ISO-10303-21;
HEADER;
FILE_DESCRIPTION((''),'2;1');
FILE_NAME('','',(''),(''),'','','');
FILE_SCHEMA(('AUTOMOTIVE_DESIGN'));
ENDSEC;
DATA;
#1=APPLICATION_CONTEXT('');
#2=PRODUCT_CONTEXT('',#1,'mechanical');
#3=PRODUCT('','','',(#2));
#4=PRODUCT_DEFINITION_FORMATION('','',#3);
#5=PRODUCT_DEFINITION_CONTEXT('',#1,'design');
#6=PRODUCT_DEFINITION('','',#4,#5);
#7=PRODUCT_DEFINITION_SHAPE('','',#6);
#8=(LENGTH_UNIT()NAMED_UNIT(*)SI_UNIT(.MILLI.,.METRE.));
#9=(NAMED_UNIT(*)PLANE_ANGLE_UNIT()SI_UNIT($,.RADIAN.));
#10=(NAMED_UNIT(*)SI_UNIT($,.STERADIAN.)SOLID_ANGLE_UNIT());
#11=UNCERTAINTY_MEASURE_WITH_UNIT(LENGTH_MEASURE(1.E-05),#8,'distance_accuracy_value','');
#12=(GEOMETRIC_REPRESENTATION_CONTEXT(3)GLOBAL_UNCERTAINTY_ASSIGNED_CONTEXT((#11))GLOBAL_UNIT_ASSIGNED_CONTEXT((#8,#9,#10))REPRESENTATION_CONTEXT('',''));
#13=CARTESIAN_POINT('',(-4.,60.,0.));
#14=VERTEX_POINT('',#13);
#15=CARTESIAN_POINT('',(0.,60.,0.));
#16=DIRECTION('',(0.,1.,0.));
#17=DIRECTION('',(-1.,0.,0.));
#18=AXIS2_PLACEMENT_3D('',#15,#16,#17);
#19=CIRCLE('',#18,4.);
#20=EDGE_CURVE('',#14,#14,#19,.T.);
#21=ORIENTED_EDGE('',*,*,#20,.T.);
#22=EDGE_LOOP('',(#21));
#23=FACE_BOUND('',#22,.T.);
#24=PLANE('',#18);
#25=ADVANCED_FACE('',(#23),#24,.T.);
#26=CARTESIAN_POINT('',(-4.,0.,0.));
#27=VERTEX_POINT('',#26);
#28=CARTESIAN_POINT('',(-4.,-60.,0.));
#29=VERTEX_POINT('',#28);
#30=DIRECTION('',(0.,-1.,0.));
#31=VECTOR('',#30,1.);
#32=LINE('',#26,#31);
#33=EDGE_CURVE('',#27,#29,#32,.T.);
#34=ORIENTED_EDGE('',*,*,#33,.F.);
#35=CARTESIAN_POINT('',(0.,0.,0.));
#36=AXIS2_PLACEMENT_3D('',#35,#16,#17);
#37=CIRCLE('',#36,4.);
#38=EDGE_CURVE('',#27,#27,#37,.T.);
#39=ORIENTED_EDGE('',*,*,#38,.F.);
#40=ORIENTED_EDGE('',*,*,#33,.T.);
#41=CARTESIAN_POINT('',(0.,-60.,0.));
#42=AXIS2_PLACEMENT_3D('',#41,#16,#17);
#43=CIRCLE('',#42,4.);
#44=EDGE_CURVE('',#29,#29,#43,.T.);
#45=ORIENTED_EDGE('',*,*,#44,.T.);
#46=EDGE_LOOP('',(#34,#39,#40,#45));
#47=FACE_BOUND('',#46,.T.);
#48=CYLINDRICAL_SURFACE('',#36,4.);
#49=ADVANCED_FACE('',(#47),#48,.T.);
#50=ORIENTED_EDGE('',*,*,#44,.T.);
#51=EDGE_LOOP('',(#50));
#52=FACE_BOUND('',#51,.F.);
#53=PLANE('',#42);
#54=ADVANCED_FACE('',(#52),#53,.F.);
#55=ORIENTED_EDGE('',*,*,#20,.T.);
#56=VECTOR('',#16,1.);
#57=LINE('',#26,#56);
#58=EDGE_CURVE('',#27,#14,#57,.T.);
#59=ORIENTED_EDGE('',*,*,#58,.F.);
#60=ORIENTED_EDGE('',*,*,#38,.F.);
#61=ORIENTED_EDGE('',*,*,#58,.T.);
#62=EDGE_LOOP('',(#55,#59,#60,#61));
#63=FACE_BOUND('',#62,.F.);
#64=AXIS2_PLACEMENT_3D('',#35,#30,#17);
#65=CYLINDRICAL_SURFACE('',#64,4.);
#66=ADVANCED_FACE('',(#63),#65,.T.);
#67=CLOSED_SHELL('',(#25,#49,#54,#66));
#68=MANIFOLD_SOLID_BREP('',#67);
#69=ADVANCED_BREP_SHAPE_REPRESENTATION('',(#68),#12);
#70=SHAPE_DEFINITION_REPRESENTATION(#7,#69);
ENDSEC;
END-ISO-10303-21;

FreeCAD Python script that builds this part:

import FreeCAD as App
import Part
import Sketcher

doc = App.newDocument("Part")
body = doc.addObject("PartDesign::Body", "Body")

sketch1 = body.newObject("Sketcher::SketchObject", "Sketch")
sketch1.AttachmentSupport = (doc.getObject("XZ_Plane"), [""])
sketch1.MapMode = "FlatFace"
sketch1.addGeometry(Part.Circle(App.Vector(0, 0, 0), App.Vector(0, 0, 1), 4), False)
sketch1.addConstraint(Sketcher.Constraint("Coincident", 0, 3, -1, 1))
sketch1.addConstraint(Sketcher.Constraint("Diameter", 0, 8.0))
pad1 = body.newObject("PartDesign::Pad", "Pad")
pad1.Profile = sketch1
pad1.Length = 120
pad1.Midplane = True

doc.recompute()
